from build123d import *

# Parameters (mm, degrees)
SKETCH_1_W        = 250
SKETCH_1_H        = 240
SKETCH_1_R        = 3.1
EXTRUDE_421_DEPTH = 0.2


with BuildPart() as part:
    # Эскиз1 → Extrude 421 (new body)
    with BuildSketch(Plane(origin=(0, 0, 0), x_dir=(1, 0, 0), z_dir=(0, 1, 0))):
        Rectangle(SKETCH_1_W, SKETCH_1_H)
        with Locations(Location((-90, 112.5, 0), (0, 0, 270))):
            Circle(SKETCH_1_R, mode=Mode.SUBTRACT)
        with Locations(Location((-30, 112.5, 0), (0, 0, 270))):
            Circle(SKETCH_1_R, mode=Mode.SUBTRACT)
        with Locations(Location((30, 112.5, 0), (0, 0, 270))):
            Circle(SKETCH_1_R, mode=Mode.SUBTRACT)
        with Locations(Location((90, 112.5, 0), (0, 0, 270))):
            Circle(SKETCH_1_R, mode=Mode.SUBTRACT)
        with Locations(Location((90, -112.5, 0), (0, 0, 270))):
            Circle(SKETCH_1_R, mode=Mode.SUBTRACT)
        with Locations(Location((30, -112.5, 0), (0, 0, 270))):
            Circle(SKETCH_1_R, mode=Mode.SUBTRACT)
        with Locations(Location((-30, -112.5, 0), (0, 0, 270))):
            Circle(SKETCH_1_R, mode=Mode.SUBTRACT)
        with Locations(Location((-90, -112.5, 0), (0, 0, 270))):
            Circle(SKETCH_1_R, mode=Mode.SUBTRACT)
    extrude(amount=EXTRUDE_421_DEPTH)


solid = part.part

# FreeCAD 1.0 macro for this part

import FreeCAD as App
import Part
import Sketcher

V = App.Vector

doc = App.newDocument("Part")
body = doc.addObject("PartDesign::Body", "Body")

sketch1 = doc.addObject("Sketcher::SketchObject", "Sketch")
body.addObject(sketch1)
sketch1.AttachmentSupport = (doc.XZ_Plane, [""])
sketch1.MapMode = "FlatFace"
sketch1.addGeometry([
    Part.LineSegment(V(-125, -120, 0), V(-125, 120, 0)),
    Part.LineSegment(V(-125, 120, 0), V(125, 120, 0)),
    Part.LineSegment(V(125, 120, 0), V(125, -120, 0)),
    Part.LineSegment(V(125, -120, 0), V(-125, -120, 0)),
    Part.Circle(V(-90, 112.5, 0), V(0, 0, 1), 3.1),
    Part.Circle(V(-30, 112.5, 0), V(0, 0, 1), 3.1),
    Part.Circle(V(30, 112.5, 0), V(0, 0, 1), 3.1),
    Part.Circle(V(90, 112.5, 0), V(0, 0, 1), 3.1),
    Part.Circle(V(-90, -112.5, 0), V(0, 0, 1), 3.1),
    Part.Circle(V(-30, -112.5, 0), V(0, 0, 1), 3.1),
    Part.Circle(V(30, -112.5, 0), V(0, 0, 1), 3.1),
    Part.Circle(V(90, -112.5, 0), V(0, 0, 1), 3.1),
], False)
sketch1.addConstraint([
    Sketcher.Constraint("Coincident", 0, 2, 1, 1),
    Sketcher.Constraint("Coincident", 1, 2, 2, 1),
    Sketcher.Constraint("Coincident", 2, 2, 3, 1),
    Sketcher.Constraint("Coincident", 3, 2, 0, 1),
    Sketcher.Constraint("Vertical", 0),
    Sketcher.Constraint("Horizontal", 1),
    Sketcher.Constraint("Vertical", 2),
    Sketcher.Constraint("Horizontal", 3),
    Sketcher.Constraint("Equal", 4, 5),
    Sketcher.Constraint("Equal", 5, 6),
    Sketcher.Constraint("Equal", 6, 7),
    Sketcher.Constraint("Equal", 7, 8),
    Sketcher.Constraint("Equal", 8, 9),
    Sketcher.Constraint("Equal", 9, 10),
    Sketcher.Constraint("Equal", 10, 11),
    Sketcher.Constraint("Symmetric", 7, 3, 8, 3, -1, 1),
    Sketcher.Constraint("Symmetric", 6, 3, 9, 3, -1, 1),
    Sketcher.Constraint("Symmetric", 5, 3, 10, 3, -1, 1),
    Sketcher.Constraint("Symmetric", 4, 3, 11, 3, -1, 1),
    Sketcher.Constraint("Symmetric", 0, 2, 2, 2, -1, 1),
    Sketcher.Constraint("Symmetric", 5, 3, 6, 3, -2),
    Sketcher.Constraint("Symmetric", 4, 3, 7, 3, -2),
    Sketcher.Constraint("Horizontal", 4, 3, 5, 3),
    Sketcher.Constraint("Diameter", 4, 6.2),
    Sketcher.Constraint("DistanceX", 1, 1, 1, 2, 250.0),
    Sketcher.Constraint("DistanceY", 0, 1, 0, 2, 240.0),
    Sketcher.Constraint("DistanceX", 4, 3, -1, 1, 90.0),
    Sketcher.Constraint("DistanceX", 5, 3, -1, 1, 30.0),
    Sketcher.Constraint("DistanceY", 8, 3, 4, 3, 225.0),
])
pad1 = doc.addObject("PartDesign::Pad", "Pad")
body.addObject(pad1)
pad1.Profile = sketch1
pad1.Length = 0.2
pad1.Reversed = True

doc.recompute()
